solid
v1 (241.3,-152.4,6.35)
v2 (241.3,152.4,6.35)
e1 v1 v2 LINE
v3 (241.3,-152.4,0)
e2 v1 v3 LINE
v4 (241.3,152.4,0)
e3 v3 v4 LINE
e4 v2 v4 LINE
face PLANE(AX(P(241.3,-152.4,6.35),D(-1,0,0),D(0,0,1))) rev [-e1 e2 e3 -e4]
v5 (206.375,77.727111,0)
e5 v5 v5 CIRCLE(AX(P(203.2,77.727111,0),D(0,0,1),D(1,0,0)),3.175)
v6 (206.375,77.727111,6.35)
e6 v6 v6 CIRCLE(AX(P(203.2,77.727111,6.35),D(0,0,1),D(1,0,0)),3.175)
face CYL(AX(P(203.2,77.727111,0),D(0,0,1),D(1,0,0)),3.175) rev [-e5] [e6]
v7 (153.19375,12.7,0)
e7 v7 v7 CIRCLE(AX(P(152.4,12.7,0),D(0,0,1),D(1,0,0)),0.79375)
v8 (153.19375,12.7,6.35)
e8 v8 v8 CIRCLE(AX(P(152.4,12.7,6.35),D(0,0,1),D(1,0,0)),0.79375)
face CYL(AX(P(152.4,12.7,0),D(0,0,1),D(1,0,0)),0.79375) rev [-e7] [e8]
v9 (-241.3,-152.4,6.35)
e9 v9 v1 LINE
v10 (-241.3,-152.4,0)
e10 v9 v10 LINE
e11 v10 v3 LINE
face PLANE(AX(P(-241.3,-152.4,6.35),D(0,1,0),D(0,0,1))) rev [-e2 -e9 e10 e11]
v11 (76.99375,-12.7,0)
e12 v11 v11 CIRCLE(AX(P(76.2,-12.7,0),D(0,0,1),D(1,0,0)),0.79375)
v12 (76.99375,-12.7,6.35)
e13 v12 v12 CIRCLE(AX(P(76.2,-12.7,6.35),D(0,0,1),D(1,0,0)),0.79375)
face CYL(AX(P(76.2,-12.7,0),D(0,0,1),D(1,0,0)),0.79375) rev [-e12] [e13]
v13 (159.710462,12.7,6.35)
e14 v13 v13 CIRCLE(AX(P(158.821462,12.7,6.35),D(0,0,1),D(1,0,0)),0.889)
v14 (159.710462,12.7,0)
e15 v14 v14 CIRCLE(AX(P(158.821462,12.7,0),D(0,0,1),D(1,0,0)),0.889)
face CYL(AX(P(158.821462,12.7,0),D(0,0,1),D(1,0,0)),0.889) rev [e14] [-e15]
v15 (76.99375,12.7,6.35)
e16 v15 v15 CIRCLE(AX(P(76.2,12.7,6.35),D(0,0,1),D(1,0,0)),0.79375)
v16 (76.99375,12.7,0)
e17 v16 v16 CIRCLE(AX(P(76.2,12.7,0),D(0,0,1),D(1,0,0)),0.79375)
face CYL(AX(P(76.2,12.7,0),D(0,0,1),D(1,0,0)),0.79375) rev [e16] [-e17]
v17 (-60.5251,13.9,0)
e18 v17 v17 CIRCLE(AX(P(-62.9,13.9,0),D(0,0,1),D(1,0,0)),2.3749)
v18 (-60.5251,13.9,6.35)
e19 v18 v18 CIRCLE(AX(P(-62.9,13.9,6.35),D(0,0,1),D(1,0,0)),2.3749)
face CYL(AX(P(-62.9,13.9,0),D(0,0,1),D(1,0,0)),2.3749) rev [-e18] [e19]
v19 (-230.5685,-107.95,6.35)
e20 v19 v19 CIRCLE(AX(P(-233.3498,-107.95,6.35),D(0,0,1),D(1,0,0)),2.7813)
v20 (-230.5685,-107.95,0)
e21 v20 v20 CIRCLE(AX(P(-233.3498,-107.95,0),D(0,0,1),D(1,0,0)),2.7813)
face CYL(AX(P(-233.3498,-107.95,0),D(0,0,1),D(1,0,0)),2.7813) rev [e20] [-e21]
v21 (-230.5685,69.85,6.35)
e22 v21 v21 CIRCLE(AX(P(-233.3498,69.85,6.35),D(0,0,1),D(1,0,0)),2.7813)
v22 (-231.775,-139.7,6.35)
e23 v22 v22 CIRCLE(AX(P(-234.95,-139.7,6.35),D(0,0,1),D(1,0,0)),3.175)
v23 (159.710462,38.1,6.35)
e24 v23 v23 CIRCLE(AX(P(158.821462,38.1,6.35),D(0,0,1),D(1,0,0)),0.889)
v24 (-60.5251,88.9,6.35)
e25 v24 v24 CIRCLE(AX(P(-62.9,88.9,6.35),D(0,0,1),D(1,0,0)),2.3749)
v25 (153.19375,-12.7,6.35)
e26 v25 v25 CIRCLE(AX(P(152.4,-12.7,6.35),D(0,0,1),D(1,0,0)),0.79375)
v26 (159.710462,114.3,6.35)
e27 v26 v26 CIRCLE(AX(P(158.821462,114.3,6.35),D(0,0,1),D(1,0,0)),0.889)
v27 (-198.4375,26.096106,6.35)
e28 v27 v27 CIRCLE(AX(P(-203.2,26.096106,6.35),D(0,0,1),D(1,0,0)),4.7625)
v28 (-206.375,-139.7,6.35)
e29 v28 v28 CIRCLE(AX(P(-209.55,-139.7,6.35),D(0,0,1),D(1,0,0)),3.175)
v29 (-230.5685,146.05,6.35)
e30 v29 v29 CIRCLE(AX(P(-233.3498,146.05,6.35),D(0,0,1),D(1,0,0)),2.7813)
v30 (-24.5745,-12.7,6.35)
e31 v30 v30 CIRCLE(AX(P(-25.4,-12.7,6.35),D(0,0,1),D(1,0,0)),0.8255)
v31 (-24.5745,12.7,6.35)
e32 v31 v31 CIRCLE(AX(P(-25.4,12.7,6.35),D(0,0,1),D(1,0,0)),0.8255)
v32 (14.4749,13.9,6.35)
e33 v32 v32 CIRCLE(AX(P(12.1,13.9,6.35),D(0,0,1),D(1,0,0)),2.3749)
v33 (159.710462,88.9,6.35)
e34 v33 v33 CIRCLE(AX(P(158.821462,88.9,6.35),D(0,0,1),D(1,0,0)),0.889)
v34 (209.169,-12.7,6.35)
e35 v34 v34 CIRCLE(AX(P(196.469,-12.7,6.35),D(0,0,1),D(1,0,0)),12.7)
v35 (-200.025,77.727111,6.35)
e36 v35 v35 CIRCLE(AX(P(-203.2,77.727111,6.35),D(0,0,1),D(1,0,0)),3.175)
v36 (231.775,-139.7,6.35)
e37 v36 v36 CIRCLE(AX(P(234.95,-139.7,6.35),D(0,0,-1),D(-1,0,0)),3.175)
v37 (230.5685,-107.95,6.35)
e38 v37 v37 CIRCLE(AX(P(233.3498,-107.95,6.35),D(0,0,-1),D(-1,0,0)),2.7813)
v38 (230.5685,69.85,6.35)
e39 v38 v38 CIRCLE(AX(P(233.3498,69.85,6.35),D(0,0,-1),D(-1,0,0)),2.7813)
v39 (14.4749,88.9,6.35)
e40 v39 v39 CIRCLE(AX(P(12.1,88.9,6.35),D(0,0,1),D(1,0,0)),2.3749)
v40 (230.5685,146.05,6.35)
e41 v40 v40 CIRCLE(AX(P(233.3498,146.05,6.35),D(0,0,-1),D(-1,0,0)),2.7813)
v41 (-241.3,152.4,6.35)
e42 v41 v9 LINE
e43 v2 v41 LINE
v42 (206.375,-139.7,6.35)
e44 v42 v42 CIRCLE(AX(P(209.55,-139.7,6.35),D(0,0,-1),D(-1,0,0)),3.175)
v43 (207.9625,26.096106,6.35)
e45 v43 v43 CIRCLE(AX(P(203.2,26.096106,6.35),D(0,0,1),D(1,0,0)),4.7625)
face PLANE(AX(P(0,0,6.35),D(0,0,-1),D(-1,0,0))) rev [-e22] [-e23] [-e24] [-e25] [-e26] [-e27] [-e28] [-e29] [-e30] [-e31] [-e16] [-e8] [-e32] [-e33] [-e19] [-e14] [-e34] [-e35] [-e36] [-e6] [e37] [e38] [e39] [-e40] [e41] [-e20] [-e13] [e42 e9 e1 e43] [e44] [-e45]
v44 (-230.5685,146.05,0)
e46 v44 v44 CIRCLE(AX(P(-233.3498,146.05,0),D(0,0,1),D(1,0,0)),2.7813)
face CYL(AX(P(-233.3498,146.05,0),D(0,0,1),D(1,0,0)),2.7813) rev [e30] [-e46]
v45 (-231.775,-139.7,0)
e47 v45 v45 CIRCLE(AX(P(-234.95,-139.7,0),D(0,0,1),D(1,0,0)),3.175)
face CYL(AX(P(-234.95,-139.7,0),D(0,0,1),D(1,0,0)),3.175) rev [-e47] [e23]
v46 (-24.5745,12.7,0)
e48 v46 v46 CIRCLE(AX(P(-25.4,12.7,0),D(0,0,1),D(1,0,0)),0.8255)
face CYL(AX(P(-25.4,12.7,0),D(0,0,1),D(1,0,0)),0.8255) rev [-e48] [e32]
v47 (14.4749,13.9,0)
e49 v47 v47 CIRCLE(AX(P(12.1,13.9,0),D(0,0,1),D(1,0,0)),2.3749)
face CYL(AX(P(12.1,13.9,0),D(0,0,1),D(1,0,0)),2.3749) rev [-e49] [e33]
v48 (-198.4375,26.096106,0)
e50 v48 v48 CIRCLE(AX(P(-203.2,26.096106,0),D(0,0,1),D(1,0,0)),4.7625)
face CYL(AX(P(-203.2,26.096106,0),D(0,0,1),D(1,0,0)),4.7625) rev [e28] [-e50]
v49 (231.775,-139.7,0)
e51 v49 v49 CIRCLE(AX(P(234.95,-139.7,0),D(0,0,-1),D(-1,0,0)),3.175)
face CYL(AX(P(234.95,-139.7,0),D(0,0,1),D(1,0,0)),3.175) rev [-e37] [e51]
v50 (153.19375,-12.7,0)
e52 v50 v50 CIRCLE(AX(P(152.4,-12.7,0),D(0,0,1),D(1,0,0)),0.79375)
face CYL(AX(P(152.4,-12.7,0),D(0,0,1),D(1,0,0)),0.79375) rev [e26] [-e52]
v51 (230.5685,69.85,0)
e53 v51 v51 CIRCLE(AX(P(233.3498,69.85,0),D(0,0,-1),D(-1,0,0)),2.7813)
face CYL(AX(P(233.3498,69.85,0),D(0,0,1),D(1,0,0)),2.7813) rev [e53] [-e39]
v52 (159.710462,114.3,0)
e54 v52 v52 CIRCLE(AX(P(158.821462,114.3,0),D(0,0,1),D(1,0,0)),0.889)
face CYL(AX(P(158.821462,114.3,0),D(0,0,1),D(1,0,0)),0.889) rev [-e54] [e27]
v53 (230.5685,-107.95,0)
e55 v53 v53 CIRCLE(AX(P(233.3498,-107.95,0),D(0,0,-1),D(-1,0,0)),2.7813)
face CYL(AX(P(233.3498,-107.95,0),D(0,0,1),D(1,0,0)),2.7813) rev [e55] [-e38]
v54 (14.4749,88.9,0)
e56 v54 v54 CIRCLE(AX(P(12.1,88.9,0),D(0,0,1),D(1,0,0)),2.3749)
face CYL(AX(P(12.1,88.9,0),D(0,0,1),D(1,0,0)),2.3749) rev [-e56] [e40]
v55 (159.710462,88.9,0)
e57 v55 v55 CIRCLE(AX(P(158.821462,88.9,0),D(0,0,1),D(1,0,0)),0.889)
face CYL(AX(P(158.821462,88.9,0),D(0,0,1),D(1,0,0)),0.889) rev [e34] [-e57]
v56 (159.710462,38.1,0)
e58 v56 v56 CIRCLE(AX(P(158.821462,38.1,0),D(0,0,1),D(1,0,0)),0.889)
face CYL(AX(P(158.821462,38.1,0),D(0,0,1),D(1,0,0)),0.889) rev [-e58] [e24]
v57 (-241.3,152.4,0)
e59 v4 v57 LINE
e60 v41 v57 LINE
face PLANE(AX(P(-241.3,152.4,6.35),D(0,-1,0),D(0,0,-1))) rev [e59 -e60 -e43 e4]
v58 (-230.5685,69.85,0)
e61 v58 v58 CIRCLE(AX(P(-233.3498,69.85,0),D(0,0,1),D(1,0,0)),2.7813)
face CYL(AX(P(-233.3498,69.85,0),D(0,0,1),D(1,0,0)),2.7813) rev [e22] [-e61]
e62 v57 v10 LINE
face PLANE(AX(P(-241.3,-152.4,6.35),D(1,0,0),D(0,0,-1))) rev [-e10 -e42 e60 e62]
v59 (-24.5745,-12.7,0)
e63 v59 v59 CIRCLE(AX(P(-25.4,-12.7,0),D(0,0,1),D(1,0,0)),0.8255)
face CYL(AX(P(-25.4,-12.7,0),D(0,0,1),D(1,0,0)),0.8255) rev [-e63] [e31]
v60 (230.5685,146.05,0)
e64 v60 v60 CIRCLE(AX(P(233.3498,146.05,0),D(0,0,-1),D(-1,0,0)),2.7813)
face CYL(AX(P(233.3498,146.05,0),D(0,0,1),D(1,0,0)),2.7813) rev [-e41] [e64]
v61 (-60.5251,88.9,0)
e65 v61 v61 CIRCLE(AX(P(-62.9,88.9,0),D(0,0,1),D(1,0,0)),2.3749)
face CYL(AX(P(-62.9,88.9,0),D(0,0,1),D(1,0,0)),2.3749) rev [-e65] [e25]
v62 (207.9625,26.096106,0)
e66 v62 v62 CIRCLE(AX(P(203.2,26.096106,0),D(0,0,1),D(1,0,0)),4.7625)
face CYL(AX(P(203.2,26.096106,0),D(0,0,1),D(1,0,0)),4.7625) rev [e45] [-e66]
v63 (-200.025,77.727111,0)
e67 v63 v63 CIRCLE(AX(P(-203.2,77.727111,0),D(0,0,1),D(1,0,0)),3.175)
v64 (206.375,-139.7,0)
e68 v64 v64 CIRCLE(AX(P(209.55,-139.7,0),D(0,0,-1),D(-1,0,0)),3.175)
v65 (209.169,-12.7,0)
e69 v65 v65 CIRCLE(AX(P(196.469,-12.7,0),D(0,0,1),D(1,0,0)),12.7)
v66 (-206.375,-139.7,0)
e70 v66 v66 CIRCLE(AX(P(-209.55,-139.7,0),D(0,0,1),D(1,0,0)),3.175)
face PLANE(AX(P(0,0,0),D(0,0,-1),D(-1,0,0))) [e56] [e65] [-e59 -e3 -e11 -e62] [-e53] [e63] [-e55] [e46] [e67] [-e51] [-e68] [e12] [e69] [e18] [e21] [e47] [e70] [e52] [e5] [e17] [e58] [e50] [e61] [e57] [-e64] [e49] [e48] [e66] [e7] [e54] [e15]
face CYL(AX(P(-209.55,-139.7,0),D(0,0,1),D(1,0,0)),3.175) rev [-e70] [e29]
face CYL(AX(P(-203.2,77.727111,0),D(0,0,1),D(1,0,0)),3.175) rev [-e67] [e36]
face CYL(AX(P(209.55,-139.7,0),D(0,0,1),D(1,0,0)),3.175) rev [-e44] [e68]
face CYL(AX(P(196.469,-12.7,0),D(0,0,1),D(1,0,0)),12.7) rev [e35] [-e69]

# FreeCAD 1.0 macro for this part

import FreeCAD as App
import Part
import Sketcher

V = App.Vector
Q = App.Units.Quantity


def add_polygon(sketch, points):
    """Adds a closed chain of lines whose ends are joined by coincident constraints."""
    first, n = sketch.GeometryCount, len(points)
    for a, b in zip(points, points[1:] + points[:1]):
        sketch.addGeometry(Part.LineSegment(App.Vector(*a, 0), App.Vector(*b, 0)), False)
    for i in range(n):
        sketch.addConstraint(Sketcher.Constraint("Coincident", first + i, 2, first + (i + 1) % n, 1))

doc = App.newDocument("Part")
body = doc.addObject("PartDesign::Body", "Body")

# Sketch on XY plane
sketch1 = doc.addObject("Sketcher::SketchObject", "Sketch")
body.addObject(sketch1)
sketch1.AttachmentSupport = (doc.XY_Plane, [""])
sketch1.MapMode = "FlatFace"
add_polygon(sketch1, [(-241, 152), (-241, -152), (241, -152), (241, 152)])  # lines 0-3
sketch1.addConstraint([
    Sketcher.Constraint("Vertical", 0),
    Sketcher.Constraint("Horizontal", 1),
    Sketcher.Constraint("Vertical", 2),
    Sketcher.Constraint("Horizontal", 3),
    Sketcher.Constraint("Symmetric", 0, 2, 2, 2, -1, 1),
    Sketcher.Constraint("DistanceX", 1, 1, 1, 2, Q("19 in")),
    Sketcher.Constraint("DistanceY", 0, 2, 0, 1, Q("12 in")),
])
pad1 = doc.addObject("PartDesign::Pad", "Pad")
body.addObject(pad1)
pad1.Profile = sketch1
pad1.Length = Q("0.25 in")

# Sketch on XY plane
sketch2 = doc.addObject("Sketcher::SketchObject", "Sketch001")
body.addObject(sketch2)
sketch2.AttachmentSupport = (doc.XY_Plane, [""])
sketch2.MapMode = "FlatFace"
sketch2.AttachmentOffset = App.Placement(V(0, 0, 0.25 * 25.4), App.Rotation())
sketch2.addGeometry([
    Part.Circle(V(-233.3, 146.1, 0), V(0, 0, 1), 2.8),
    Part.Circle(V(-233.3, -108, 0), V(0, 0, 1), 2.8),
    Part.Circle(V(-233.3, 69.8, 0), V(0, 0, 1), 2.8),
], False)
sketch2.addConstraint([
    Sketcher.Constraint("Equal", 0, 1),
    Sketcher.Constraint("Equal", 1, 2),
    Sketcher.Constraint("Vertical", 0, 3, 1, 3),
    Sketcher.Constraint("Vertical", 1, 3, 2, 3),
    Sketcher.Constraint("Diameter", 0, Q("0.219 in")),
    Sketcher.Constraint("DistanceY", 1, 3, 0, 3, Q("10 in")),
    Sketcher.Constraint("DistanceY", 2, 3, 0, 3, Q("3 in")),
    Sketcher.Constraint("DistanceY", -1, 1, 0, 3, Q("5.75 in")),
    Sketcher.Constraint("DistanceX", 0, 3, -1, 1, Q("9.187 in")),
])
pocket1 = doc.addObject("PartDesign::Pocket", "Pocket")
body.addObject(pocket1)
pocket1.Profile = sketch2
pocket1.Type = "ThroughAll"
doc.recompute()

mirrored = doc.addObject("PartDesign::Mirrored", "Mirrored")
body.addObject(mirrored)
mirrored.Originals = [pocket1]
mirrored.MirrorPlane = (doc.YZ_Plane, [""])
body.Tip = mirrored

# Sketch on XY plane
sketch3 = doc.addObject("Sketcher::SketchObject", "Sketch002")
body.addObject(sketch3)
sketch3.AttachmentSupport = (doc.XY_Plane, [""])
sketch3.MapMode = "FlatFace"
sketch3.AttachmentOffset = App.Placement(V(0, 0, 0.25 * 25.4), App.Rotation())
sketch3.addGeometry([
    Part.Circle(V(-234.9, -139.7, 0), V(0, 0, 1), 3.2),
    Part.Circle(V(-209.6, -139.7, 0), V(0, 0, 1), 3.2),
], False)
sketch3.addConstraint([
    Sketcher.Constraint("Equal", 0, 1),
    Sketcher.Constraint("Horizontal", 0, 3, 1, 3),
    Sketcher.Constraint("Diameter", 0, Q("0.25 in")),
    Sketcher.Constraint("DistanceX", 0, 3, 1, 3, Q("1 in")),
    Sketcher.Constraint("DistanceY", 0, 3, -1, 1, Q("5.5 in")),
    Sketcher.Constraint("DistanceX", 0, 3, -1, 1, Q("9.25 in")),
])
pocket2 = doc.addObject("PartDesign::Pocket", "Pocket001")
body.addObject(pocket2)
pocket2.Profile = sketch3
pocket2.Type = "ThroughAll"
doc.recompute()

mirrored2 = doc.addObject("PartDesign::Mirrored", "Mirrored001")
body.addObject(mirrored2)
mirrored2.Originals = [pocket2]
mirrored2.MirrorPlane = (doc.YZ_Plane, [""])
body.Tip = mirrored2

# Sketch on XY plane
sketch4 = doc.addObject("Sketcher::SketchObject", "Sketch003")
body.addObject(sketch4)
sketch4.AttachmentSupport = (doc.XY_Plane, [""])
sketch4.MapMode = "FlatFace"
sketch4.AttachmentOffset = App.Placement(V(0, 0, 0.25 * 25.4), App.Rotation())
sketch4.addGeometry(Part.Circle(V(196, -13, 0), V(0, 0, 1), 13), False)
sketch4.addConstraint([
    Sketcher.Constraint("Diameter", 0, Q("1 in")),
    Sketcher.Constraint("DistanceY", 0, 3, -1, 1, Q("0.5 in")),
    Sketcher.Constraint("DistanceX", -1, 1, 0, 3, Q("7.735 in")),
])
pocket3 = doc.addObject("PartDesign::Pocket", "Pocket002")
body.addObject(pocket3)
pocket3.Profile = sketch4
pocket3.Type = "ThroughAll"

# Sketch on XY plane
sketch5 = doc.addObject("Sketcher::SketchObject", "Sketch004")
body.addObject(sketch5)
sketch5.AttachmentSupport = (doc.XY_Plane, [""])
sketch5.MapMode = "FlatFace"
sketch5.AttachmentOffset = App.Placement(V(0, 0, 0.25 * 25.4), App.Rotation())
sketch5.addGeometry([
    Part.Circle(V(-62.9, 88.9, 0), V(0, 0, 1), 2.4),
    Part.Circle(V(12.1, 88.9, 0), V(0, 0, 1), 2.4),
    Part.Circle(V(12.1, 13.9, 0), V(0, 0, 1), 2.4),
    Part.Circle(V(-62.9, 13.9, 0), V(0, 0, 1), 2.4),
], False)
sketch5.addConstraint([
    Sketcher.Constraint("Equal", 0, 1),
    Sketcher.Constraint("Equal", 1, 2),
    Sketcher.Constraint("Equal", 2, 3),
    Sketcher.Constraint("Horizontal", 0, 3, 1, 3),
    Sketcher.Constraint("Horizontal", 2, 3, 3, 3),
    Sketcher.Constraint("Vertical", 1, 3, 2, 3),
    Sketcher.Constraint("Vertical", 0, 3, 3, 3),
    Sketcher.Constraint("Diameter", 0, Q("0.187 in")),
    Sketcher.Constraint("DistanceY", -1, 1, 0, 3, Q("3.5 in")),
    Sketcher.Constraint("DistanceX", 0, 3, -1, 1, 62.9),
    Sketcher.Constraint("DistanceX", -1, 1, 1, 3, 12.1),
    Sketcher.Constraint("DistanceY", -1, 1, 2, 3, 13.9),
])
pocket4 = doc.addObject("PartDesign::Pocket", "Pocket003")
body.addObject(pocket4)
pocket4.Profile = sketch5
pocket4.Type = "ThroughAll"

# Sketch on XY plane
sketch6 = doc.addObject("Sketcher::SketchObject", "Sketch005")
body.addObject(sketch6)
sketch6.AttachmentSupport = (doc.XY_Plane, [""])
sketch6.MapMode = "FlatFace"
sketch6.AttachmentOffset = App.Placement(V(0, 0, 0.25 * 25.4), App.Rotation())
sketch6.addGeometry([
    Part.Circle(V(-203.2, 77.7, 0), V(0, 0, 1), 3.2),
    Part.Circle(V(-203.2, 26.1, 0), V(0, 0, 1), 4.8),
    Part.Circle(V(203.2, 77.7, 0), V(0, 0, 1), 3.2),
    Part.Circle(V(203.2, 26.1, 0), V(0, 0, 1), 4.8),
], False)
sketch6.addConstraint([
    Sketcher.Constraint("Equal", 0, 2),
    Sketcher.Constraint("Equal", 1, 3),
    Sketcher.Constraint("Symmetric", 0, 3, 2, 3, -2),
    Sketcher.Constraint("Symmetric", 1, 3, 3, 3, -2),
    Sketcher.Constraint("Vertical", 0, 3, 1, 3),
    Sketcher.Constraint("Diameter", 0, Q("0.25 in")),
    Sketcher.Constraint("Diameter", 1, Q("0.375 in")),
    Sketcher.Constraint("DistanceX", 0, 3, -1, 1, Q("8 in")),
    Sketcher.Constraint("DistanceY", -1, 1, 0, 3, 77.727111),
    Sketcher.Constraint("DistanceY", -1, 1, 1, 3, 26.096106),
])
pocket5 = doc.addObject("PartDesign::Pocket", "Pocket004")
body.addObject(pocket5)
pocket5.Profile = sketch6
pocket5.Type = "ThroughAll"

# Sketch on XY plane
sketch7 = doc.addObject("Sketcher::SketchObject", "Sketch006")
body.addObject(sketch7)
sketch7.AttachmentSupport = (doc.XY_Plane, [""])
sketch7.MapMode = "FlatFace"
sketch7.AttachmentOffset = App.Placement(V(0, 0, 0.25 * 25.4), App.Rotation())
sketch7.addGeometry([
    Part.Circle(V(158.8, 114.3, 0), V(0, 0, 1), 0.9),
    Part.Circle(V(158.8, 88.9, 0), V(0, 0, 1), 0.9),
    Part.Circle(V(158.8, 38.1, 0), V(0, 0, 1), 0.9),
    Part.Circle(V(158.8, 12.7, 0), V(0, 0, 1), 0.9),
], False)
sketch7.addConstraint([
    Sketcher.Constraint("Equal", 0, 1),
    Sketcher.Constraint("Equal", 1, 2),
    Sketcher.Constraint("Equal", 2, 3),
    Sketcher.Constraint("Vertical", 0, 3, 1, 3),
    Sketcher.Constraint("Vertical", 1, 3, 2, 3),
    Sketcher.Constraint("Vertical", 2, 3, 3, 3),
    Sketcher.Constraint("Diameter", 0, Q("0.07 in")),
    Sketcher.Constraint("DistanceY", 1, 3, 0, 3, Q("1 in")),
    Sketcher.Constraint("DistanceY", 2, 3, 1, 3, Q("2 in")),
    Sketcher.Constraint("DistanceY", 3, 3, 2, 3, Q("1 in")),
    Sketcher.Constraint("DistanceY", -1, 1, 0, 3, Q("4.5 in")),
    Sketcher.Constraint("DistanceX", -1, 1, 0, 3, 158.821462),
])
pocket6 = doc.addObject("PartDesign::Pocket", "Pocket005")
body.addObject(pocket6)
pocket6.Profile = sketch7
pocket6.Type = "ThroughAll"

# Sketch on XY plane
sketch8 = doc.addObject("Sketcher::SketchObject", "Sketch007")
body.addObject(sketch8)
sketch8.AttachmentSupport = (doc.XY_Plane, [""])
sketch8.MapMode = "FlatFace"
sketch8.AttachmentOffset = App.Placement(V(0, 0, 0.25 * 25.4), App.Rotation())
sketch8.addGeometry([
    Part.Circle(V(-25.4, 12.7, 0), V(0, 0, 1), 0.8),  # 0
    Part.Circle(V(-25.4, -12.7, 0), V(0, 0, 1), 0.8),  # 1
    Part.Circle(V(76.2, 12.7, 0), V(0, 0, 1), 0.8),  # 2
    Part.Circle(V(76.2, -12.7, 0), V(0, 0, 1), 0.8),  # 3
    Part.Circle(V(152.4, 12.7, 0), V(0, 0, 1), 0.8),  # 4
    Part.Circle(V(152.4, -12.7, 0), V(0, 0, 1), 0.8),  # 5
], False)
sketch8.addConstraint([
    Sketcher.Constraint("Equal", 0, 1),
    Sketcher.Constraint("Equal", 2, 3),
    Sketcher.Constraint("Equal", 3, 4),
    Sketcher.Constraint("Equal", 4, 5),
    Sketcher.Constraint("Symmetric", 0, 3, 1, 3, -1),
    Sketcher.Constraint("Symmetric", 2, 3, 3, 3, -1),
    Sketcher.Constraint("Symmetric", 4, 3, 5, 3, -1),
    Sketcher.Constraint("Horizontal", 0, 3, 2, 3),
    Sketcher.Constraint("Horizontal", 2, 3, 4, 3),
    Sketcher.Constraint("Diameter", 0, Q("0.065 in")),
    Sketcher.Constraint("Diameter", 2, Q("0.0625 in")),
    Sketcher.Constraint("DistanceX", 0, 3, -1, 1, Q("1 in")),
    Sketcher.Constraint("DistanceX", -1, 1, 2, 3, Q("3 in")),
    Sketcher.Constraint("DistanceX", -1, 1, 4, 3, Q("6 in")),
    Sketcher.Constraint("DistanceY", 1, 3, 0, 3, Q("1 in")),
])
pocket7 = doc.addObject("PartDesign::Pocket", "Pocket006")
body.addObject(pocket7)
pocket7.Profile = sketch8
pocket7.Type = "ThroughAll"

doc.recompute()
